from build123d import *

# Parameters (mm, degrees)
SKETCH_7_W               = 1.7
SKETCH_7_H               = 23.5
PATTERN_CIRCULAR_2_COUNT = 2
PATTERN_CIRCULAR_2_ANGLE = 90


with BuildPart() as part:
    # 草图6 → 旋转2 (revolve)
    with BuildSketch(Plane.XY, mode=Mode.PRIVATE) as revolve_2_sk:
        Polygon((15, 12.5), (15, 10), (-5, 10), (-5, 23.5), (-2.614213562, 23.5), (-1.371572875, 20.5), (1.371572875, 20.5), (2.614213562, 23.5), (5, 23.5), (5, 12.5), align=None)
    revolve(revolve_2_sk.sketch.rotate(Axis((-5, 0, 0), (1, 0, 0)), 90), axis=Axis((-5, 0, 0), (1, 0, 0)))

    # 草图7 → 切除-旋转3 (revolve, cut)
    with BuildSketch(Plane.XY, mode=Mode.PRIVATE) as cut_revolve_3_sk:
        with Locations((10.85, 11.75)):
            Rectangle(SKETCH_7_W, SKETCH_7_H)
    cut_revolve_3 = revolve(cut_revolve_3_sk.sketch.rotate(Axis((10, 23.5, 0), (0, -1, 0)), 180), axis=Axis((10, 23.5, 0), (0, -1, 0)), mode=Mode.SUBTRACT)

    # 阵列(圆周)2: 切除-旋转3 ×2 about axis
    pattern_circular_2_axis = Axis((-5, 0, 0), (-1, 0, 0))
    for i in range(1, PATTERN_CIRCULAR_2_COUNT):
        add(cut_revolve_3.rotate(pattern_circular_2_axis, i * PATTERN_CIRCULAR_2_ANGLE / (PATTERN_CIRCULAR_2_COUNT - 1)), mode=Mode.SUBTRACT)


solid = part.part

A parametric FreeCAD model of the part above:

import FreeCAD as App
import Part
import Sketcher
Q = App.Units.Quantity


def add_polygon(sketch, points):
    """Adds a closed chain of lines whose ends are joined by coincident constraints."""
    first, n = sketch.GeometryCount, len(points)
    for a, b in zip(points, points[1:] + points[:1]):
        sketch.addGeometry(Part.LineSegment(App.Vector(*a, 0), App.Vector(*b, 0)), False)
    for i in range(n):
        sketch.addConstraint(Sketcher.Constraint("Coincident", first + i, 2, first + (i + 1) % n, 1))

doc = App.newDocument("Part")
body = doc.addObject("PartDesign::Body", "Body")

# Sketch on XY plane
sketch1 = doc.addObject("Sketcher::SketchObject", "Sketch")
body.addObject(sketch1)
sketch1.AttachmentSupport = (doc.XY_Plane, [""])
sketch1.MapMode = "FlatFace"
add_polygon(sketch1, [(15, 10), (15, 12.5), (5, 12.5), (5, 23.5), (2.614214, 23.5), (1.371573, 20.5), (-1.371573, 20.5), (-2.614214, 23.5), (-5, 23.5), (-5, 10)])  # lines 0-9
sketch1.addConstraint(Sketcher.Constraint("Vertical", 0))
sketch1.addConstraint(Sketcher.Constraint("Horizontal", 1))
sketch1.addConstraint(Sketcher.Constraint("Vertical", 2))
sketch1.addConstraint(Sketcher.Constraint("Horizontal", 3))
sketch1.addConstraint(Sketcher.Constraint("Horizontal", 5))
sketch1.addConstraint(Sketcher.Constraint("Horizontal", 7))
sketch1.addConstraint(Sketcher.Constraint("Vertical", 8))
sketch1.addConstraint(Sketcher.Constraint("Horizontal", 9))
sketch1.addConstraint(Sketcher.Constraint("Symmetric", 3, 2, 6, 2, -2))
sketch1.addConstraint(Sketcher.Constraint("Equal", 3, 7))
sketch1.addConstraint(Sketcher.Constraint("Equal", 4, 6))
sketch1.addConstraint(Sketcher.Constraint("DistanceX", 1, 2, 1, 1, Q("10 mm")))
sketch1.addConstraint(Sketcher.Constraint("DistanceX", 9, 1, 9, 2, Q("20 mm")))
sketch1.addConstraint(Sketcher.Constraint("DistanceY", 2, 1, 2, 2, Q("11 mm")))
sketch1.addConstraint(Sketcher.Constraint("DistanceY", 0, 1, 0, 2, Q("2.5 mm")))
sketch1.addConstraint(Sketcher.Constraint("DistanceY", -1, 1, 8, 2, Q("10 mm")))
sketch1.addConstraint(Sketcher.Constraint("Angle", 4, Q("-112.5 deg")))
sketch1.addConstraint(Sketcher.Constraint("DistanceY", 4, 2, 3, 2, Q("3 mm")))
sketch1.addConstraint(Sketcher.Constraint("DistanceX", 3, 2, 3, 1, Q("2.385786 mm")))
revolution = doc.addObject("PartDesign::Revolution", "Revolution")
body.addObject(revolution)
revolution.Profile = sketch1
revolution.ReferenceAxis = (sketch1, ["H_Axis"])
revolution.Angle = 360

# Sketch on XY plane
sketch2 = doc.addObject("Sketcher::SketchObject", "Sketch001")
body.addObject(sketch2)
sketch2.AttachmentSupport = (doc.XY_Plane, [""])
sketch2.MapMode = "FlatFace"
add_polygon(sketch2, [(10, 23.5), (10, 0), (11.7, 0), (11.7, 23.5)])  # lines 0-3
sketch2.addGeometry(Part.LineSegment(App.Vector(10, 23.5, 0), App.Vector(10, 0, 0)), True)  # axis
sketch2.addConstraint(Sketcher.Constraint("Vertical", 0))
sketch2.addConstraint(Sketcher.Constraint("Horizontal", 1))
sketch2.addConstraint(Sketcher.Constraint("Vertical", 2))
sketch2.addConstraint(Sketcher.Constraint("Horizontal", 3))
sketch2.addConstraint(Sketcher.Constraint("Vertical", 4))
sketch2.addConstraint(Sketcher.Constraint("Coincident", 4, 1, 3, 2))
sketch2.addConstraint(Sketcher.Constraint("PointOnObject", 0, 2, -1))
sketch2.addConstraint(Sketcher.Constraint("PointOnObject", 4, 2, -1))
sketch2.addConstraint(Sketcher.Constraint("DistanceX", 1, 1, 1, 2, Q("1.7 mm")))
sketch2.addConstraint(Sketcher.Constraint("DistanceY", 0, 2, 0, 1, Q("23.5 mm")))
sketch2.addConstraint(Sketcher.Constraint("DistanceX", -1, 1, 0, 2, Q("10 mm")))
groove = doc.addObject("PartDesign::Groove", "Groove")
body.addObject(groove)
groove.Profile = sketch2
groove.ReferenceAxis = (sketch2, ["Axis0"])
groove.Angle = 360
doc.recompute()

polarpattern = doc.addObject("PartDesign::PolarPattern", "PolarPattern")
body.addObject(polarpattern)
polarpattern.Originals = [groove]
polarpattern.Axis = (doc.X_Axis, [""])
polarpattern.Angle = 90
polarpattern.Occurrences = 2
polarpattern.Reversed = True
body.Tip = polarpattern

doc.recompute()
